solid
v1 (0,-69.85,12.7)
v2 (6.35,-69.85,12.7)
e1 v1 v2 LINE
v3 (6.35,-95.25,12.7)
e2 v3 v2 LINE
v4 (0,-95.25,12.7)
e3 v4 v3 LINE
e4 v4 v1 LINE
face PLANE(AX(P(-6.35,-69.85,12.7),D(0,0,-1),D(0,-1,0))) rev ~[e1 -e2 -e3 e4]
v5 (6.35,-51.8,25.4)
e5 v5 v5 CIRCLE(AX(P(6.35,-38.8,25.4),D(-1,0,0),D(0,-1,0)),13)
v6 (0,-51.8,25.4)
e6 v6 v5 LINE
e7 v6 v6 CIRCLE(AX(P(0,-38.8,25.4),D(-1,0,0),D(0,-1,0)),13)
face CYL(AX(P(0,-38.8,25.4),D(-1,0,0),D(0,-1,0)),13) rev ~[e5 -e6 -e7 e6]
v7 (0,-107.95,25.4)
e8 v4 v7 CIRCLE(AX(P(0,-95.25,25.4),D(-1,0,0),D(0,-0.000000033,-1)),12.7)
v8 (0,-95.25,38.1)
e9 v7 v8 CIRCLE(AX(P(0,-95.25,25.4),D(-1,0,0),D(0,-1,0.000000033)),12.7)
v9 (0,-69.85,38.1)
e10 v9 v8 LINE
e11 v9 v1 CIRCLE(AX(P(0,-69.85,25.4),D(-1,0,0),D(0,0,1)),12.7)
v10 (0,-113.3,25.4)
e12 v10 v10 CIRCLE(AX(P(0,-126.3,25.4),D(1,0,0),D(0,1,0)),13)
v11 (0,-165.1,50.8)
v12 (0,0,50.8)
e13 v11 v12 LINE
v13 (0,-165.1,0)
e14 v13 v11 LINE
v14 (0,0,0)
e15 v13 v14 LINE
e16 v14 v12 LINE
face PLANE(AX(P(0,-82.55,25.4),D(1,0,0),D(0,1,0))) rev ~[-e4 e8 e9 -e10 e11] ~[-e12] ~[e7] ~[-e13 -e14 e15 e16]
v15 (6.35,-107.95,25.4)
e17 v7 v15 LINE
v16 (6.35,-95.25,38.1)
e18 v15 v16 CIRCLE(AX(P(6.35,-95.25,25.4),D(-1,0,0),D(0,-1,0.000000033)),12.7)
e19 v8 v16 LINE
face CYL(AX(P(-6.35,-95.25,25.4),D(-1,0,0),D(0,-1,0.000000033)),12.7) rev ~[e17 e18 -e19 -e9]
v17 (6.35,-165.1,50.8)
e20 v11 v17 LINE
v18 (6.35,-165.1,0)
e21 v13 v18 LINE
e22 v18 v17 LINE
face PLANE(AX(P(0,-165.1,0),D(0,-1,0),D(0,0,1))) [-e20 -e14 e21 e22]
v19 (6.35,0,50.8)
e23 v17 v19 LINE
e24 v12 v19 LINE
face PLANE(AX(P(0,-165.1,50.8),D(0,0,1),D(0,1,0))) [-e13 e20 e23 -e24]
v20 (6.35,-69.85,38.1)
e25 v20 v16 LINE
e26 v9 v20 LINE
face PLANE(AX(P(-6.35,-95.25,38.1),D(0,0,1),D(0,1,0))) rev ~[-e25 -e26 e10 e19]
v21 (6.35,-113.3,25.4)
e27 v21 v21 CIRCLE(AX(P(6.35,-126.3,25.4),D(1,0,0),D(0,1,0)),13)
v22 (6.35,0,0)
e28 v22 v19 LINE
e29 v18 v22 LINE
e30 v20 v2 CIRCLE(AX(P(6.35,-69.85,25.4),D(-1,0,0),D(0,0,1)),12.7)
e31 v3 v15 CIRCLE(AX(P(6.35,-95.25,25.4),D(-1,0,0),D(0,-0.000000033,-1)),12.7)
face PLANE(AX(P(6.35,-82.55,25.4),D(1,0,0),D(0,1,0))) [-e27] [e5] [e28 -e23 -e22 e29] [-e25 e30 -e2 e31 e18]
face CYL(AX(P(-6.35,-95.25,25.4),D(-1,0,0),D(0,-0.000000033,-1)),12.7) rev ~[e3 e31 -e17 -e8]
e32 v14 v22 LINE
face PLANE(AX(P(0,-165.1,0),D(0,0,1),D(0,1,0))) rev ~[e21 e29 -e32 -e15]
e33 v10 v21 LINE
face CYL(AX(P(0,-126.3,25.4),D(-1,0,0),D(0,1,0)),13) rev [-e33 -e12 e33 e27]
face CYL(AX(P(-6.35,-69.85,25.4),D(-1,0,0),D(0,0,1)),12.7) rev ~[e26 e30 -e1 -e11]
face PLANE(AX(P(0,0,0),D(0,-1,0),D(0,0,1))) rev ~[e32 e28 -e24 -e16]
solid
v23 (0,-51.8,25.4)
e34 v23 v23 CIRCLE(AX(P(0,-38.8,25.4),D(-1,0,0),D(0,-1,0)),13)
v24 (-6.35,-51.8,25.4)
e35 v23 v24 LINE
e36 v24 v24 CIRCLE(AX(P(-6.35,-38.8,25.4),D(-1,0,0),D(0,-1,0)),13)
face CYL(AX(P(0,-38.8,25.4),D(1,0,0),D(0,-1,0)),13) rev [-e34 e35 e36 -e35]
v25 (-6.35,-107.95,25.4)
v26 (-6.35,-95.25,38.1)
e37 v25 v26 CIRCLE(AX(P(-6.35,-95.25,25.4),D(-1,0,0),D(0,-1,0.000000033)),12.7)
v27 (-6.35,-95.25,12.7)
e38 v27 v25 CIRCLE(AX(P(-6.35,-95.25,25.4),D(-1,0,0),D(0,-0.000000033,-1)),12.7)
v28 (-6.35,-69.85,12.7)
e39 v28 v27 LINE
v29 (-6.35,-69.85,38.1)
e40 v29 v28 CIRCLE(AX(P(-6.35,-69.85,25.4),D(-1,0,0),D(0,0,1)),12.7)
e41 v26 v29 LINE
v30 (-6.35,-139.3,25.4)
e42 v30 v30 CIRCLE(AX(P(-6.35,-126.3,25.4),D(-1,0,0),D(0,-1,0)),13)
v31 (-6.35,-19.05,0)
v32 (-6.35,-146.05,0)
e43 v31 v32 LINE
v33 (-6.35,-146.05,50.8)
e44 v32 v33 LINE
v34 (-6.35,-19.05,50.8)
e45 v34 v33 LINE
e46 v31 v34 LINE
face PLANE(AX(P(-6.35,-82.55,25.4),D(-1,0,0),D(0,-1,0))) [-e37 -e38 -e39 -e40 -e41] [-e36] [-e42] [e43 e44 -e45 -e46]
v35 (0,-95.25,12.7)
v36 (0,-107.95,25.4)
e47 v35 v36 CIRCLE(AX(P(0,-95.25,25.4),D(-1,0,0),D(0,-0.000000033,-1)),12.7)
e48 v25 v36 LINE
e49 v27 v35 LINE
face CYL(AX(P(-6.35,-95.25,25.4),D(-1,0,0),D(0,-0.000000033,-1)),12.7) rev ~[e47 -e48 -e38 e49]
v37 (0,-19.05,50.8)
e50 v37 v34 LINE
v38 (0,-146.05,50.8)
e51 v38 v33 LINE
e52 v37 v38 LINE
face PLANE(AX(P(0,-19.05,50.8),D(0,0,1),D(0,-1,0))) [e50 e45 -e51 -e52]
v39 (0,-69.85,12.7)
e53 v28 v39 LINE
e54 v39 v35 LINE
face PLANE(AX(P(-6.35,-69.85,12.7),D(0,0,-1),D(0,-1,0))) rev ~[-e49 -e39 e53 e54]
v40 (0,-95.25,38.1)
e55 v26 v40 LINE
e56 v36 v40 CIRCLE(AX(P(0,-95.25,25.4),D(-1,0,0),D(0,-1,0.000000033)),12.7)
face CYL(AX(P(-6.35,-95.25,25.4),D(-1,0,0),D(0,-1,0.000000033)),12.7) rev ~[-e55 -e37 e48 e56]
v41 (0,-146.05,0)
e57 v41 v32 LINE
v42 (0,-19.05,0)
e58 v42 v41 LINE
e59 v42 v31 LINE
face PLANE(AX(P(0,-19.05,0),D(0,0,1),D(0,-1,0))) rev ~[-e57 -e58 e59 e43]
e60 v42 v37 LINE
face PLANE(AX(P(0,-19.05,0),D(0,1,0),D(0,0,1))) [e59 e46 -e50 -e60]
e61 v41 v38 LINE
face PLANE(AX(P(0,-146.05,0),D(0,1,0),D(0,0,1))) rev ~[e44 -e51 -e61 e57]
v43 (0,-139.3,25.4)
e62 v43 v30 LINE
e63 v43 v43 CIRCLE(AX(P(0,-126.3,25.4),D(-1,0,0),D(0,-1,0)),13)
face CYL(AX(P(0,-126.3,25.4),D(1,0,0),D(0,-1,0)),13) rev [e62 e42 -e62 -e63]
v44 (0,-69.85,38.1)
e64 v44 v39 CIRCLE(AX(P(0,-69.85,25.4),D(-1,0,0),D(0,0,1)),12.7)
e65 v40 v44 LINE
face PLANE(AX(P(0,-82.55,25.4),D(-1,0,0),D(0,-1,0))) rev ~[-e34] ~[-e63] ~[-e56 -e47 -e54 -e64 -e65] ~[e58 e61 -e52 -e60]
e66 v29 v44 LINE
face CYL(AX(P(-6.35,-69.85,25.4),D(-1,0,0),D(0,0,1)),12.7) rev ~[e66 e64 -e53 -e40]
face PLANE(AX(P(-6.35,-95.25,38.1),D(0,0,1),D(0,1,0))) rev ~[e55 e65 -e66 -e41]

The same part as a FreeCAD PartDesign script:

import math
import FreeCAD as App
import Part
import Sketcher
Q = App.Units.Quantity


def add_polygon(sketch, points):
    """Adds a closed chain of lines whose ends are joined by coincident constraints."""
    first, n = sketch.GeometryCount, len(points)
    for a, b in zip(points, points[1:] + points[:1]):
        sketch.addGeometry(Part.LineSegment(App.Vector(*a, 0), App.Vector(*b, 0)), False)
    for i in range(n):
        sketch.addConstraint(Sketcher.Constraint("Coincident", first + i, 2, first + (i + 1) % n, 1))

doc = App.newDocument("Part")
body = doc.addObject("PartDesign::Body", "Body")

# Sketch on YZ plane
sketch1 = doc.addObject("Sketcher::SketchObject", "Sketch")
body.addObject(sketch1)
sketch1.AttachmentSupport = (doc.YZ_Plane, [""])
sketch1.MapMode = "FlatFace"
add_polygon(sketch1, [(-165, 51), (-165, 0), (0, 0), (0, 51)])  # lines 0-3
sketch1.addGeometry(Part.Circle(App.Vector(-126, 25, 0), App.Vector(0, 0, 1), 13), False)  # 4
sketch1.addGeometry(Part.Circle(App.Vector(-39, 25, 0), App.Vector(0, 0, 1), 13), False)  # 5
sketch1.addConstraint([
    Sketcher.Constraint("Vertical", 0),
    Sketcher.Constraint("Horizontal", 1),
    Sketcher.Constraint("Vertical", 2),
    Sketcher.Constraint("Horizontal", 3),
    Sketcher.Constraint("Coincident", 1, 2, -1, 1),
    Sketcher.Constraint("Equal", 4, 5),
    Sketcher.Constraint("Horizontal", 4, 3, 5, 3),
    Sketcher.Constraint("DistanceY", 0, 2, 0, 1, Q("2 in")),
    Sketcher.Constraint("DistanceX", 1, 1, 1, 2, Q("6.5 in")),
    Sketcher.Constraint("DistanceY", -1, 1, 4, 3, Q("1 in")),
    Sketcher.Constraint("Diameter", 4, Q("26 mm")),
    Sketcher.Constraint("DistanceX", 4, 3, -1, 1, Q("126.3 mm")),
    Sketcher.Constraint("DistanceX", 5, 3, -1, 1, Q("38.8 mm")),
])
pad1 = doc.addObject("PartDesign::Pad", "Pad")
body.addObject(pad1)
pad1.Profile = sketch1
pad1.Length = Q("0.25 in")
body2 = doc.addObject("PartDesign::Body", "Body001")

# Sketch on YZ plane
sketch2 = doc.addObject("Sketcher::SketchObject", "Sketch001")
body2.addObject(sketch2)
sketch2.AttachmentSupport = (doc.getObject("YZ_Plane001"), [""])
sketch2.MapMode = "FlatFace"
add_polygon(sketch2, [(-19, 51), (-19, 0), (-146, 0), (-146, 51)])  # lines 0-3
sketch2.addGeometry(Part.Circle(App.Vector(-39, 25, 0), App.Vector(0, 0, 1), 13), False)  # 4
sketch2.addGeometry(Part.Circle(App.Vector(-126, 25, 0), App.Vector(0, 0, 1), 13), False)  # 5
sketch2.addConstraint([
    Sketcher.Constraint("Vertical", 0),
    Sketcher.Constraint("Horizontal", 1),
    Sketcher.Constraint("Vertical", 2),
    Sketcher.Constraint("Horizontal", 3),
    Sketcher.Constraint("Equal", 4, 5),
    Sketcher.Constraint("PointOnObject", 0, 2, -1),
    Sketcher.Constraint("Horizontal", 4, 3, 5, 3),
    Sketcher.Constraint("DistanceX", 1, 2, 1, 1, Q("5 in")),
    Sketcher.Constraint("DistanceY", 0, 2, 0, 1, Q("2 in")),
    Sketcher.Constraint("DistanceY", -1, 1, 4, 3, Q("1 in")),
    Sketcher.Constraint("Diameter", 4, Q("26 mm")),
    Sketcher.Constraint("DistanceX", 0, 2, -1, 1, Q("0.75 in")),
    Sketcher.Constraint("DistanceX", 4, 3, -1, 1, Q("38.8 mm")),
    Sketcher.Constraint("DistanceX", 5, 3, -1, 1, Q("126.3 mm")),
])
pad2 = doc.addObject("PartDesign::Pad", "Pad001")
body2.addObject(pad2)
pad2.Profile = sketch2
pad2.Length = Q("0.25 in")
pad2.Reversed = True
body3 = doc.addObject("PartDesign::Body", "Body002")

# Sketch on YZ plane
sketch3 = doc.addObject("Sketcher::SketchObject", "Sketch002")
body3.addObject(sketch3)
sketch3.AttachmentSupport = (doc.getObject("YZ_Plane002"), [""])
sketch3.MapMode = "FlatFace"
sketch3.AttachmentOffset = App.Placement(App.Vector(0, 0, -0.25 * 25.4), App.Rotation())
sketch3.addGeometry([
    Part.ArcOfCircle(Part.Circle(App.Vector(-70, 25, 0), App.Vector(0, 0, 1), 13), math.radians(-90), math.radians(90)),  # 0
    Part.LineSegment(App.Vector(-70, 13, 0), App.Vector(-95, 13, 0)),  # 1
    Part.ArcOfCircle(Part.Circle(App.Vector(-95, 25, 0), App.Vector(0, 0, 1), 13), math.radians(-180), math.radians(-90)),  # 2
    Part.ArcOfCircle(Part.Circle(App.Vector(-95, 25, 0), App.Vector(0, 0, 1), 13), math.radians(90), math.radians(180)),  # 3
    Part.LineSegment(App.Vector(-95, 38, 0), App.Vector(-70, 38, 0)),  # 4
], False)
sketch3.addConstraint([
    Sketcher.Constraint("Tangent", 0, 1, 1, 1),
    Sketcher.Constraint("Tangent", 1, 2, 2, 2),
    Sketcher.Constraint("Tangent", 2, 1, 3, 2),
    Sketcher.Constraint("Tangent", 3, 1, 4, 1),
    Sketcher.Constraint("Tangent", 4, 2, 0, 2),
    Sketcher.Constraint("Horizontal", 1),
    Sketcher.Constraint("Horizontal", 4),
    Sketcher.Constraint("Equal", 0, 2),
    Sketcher.Constraint("Horizontal", 3, 3, 2, 1),
    Sketcher.Constraint("Radius", 0, Q("0.5 in")),
    Sketcher.Constraint("DistanceX", 1, 2, 1, 1, Q("1 in")),
    Sketcher.Constraint("DistanceY", -1, 1, 0, 3, Q("1 in")),
    Sketcher.Constraint("DistanceX", 0, 3, -1, 1, Q("2.75 in")),
])
pad3 = doc.addObject("PartDesign::Pad", "Pad002")
body3.addObject(pad3)
pad3.Profile = sketch3
pad3.Length = 12.701
doc.recompute()

body4 = doc.addObject("PartDesign::Body", "Body003")
body4.BaseFeature = body3
boolean = doc.addObject("PartDesign::Boolean", "Boolean")
body.addObject(boolean)
boolean.Type = "Cut"
boolean.addObjects([body4])
doc.recompute()

boolean2 = doc.addObject("PartDesign::Boolean", "Boolean001")
body2.addObject(boolean2)
boolean2.Type = "Cut"
boolean2.addObjects([body3])

doc.recompute()
